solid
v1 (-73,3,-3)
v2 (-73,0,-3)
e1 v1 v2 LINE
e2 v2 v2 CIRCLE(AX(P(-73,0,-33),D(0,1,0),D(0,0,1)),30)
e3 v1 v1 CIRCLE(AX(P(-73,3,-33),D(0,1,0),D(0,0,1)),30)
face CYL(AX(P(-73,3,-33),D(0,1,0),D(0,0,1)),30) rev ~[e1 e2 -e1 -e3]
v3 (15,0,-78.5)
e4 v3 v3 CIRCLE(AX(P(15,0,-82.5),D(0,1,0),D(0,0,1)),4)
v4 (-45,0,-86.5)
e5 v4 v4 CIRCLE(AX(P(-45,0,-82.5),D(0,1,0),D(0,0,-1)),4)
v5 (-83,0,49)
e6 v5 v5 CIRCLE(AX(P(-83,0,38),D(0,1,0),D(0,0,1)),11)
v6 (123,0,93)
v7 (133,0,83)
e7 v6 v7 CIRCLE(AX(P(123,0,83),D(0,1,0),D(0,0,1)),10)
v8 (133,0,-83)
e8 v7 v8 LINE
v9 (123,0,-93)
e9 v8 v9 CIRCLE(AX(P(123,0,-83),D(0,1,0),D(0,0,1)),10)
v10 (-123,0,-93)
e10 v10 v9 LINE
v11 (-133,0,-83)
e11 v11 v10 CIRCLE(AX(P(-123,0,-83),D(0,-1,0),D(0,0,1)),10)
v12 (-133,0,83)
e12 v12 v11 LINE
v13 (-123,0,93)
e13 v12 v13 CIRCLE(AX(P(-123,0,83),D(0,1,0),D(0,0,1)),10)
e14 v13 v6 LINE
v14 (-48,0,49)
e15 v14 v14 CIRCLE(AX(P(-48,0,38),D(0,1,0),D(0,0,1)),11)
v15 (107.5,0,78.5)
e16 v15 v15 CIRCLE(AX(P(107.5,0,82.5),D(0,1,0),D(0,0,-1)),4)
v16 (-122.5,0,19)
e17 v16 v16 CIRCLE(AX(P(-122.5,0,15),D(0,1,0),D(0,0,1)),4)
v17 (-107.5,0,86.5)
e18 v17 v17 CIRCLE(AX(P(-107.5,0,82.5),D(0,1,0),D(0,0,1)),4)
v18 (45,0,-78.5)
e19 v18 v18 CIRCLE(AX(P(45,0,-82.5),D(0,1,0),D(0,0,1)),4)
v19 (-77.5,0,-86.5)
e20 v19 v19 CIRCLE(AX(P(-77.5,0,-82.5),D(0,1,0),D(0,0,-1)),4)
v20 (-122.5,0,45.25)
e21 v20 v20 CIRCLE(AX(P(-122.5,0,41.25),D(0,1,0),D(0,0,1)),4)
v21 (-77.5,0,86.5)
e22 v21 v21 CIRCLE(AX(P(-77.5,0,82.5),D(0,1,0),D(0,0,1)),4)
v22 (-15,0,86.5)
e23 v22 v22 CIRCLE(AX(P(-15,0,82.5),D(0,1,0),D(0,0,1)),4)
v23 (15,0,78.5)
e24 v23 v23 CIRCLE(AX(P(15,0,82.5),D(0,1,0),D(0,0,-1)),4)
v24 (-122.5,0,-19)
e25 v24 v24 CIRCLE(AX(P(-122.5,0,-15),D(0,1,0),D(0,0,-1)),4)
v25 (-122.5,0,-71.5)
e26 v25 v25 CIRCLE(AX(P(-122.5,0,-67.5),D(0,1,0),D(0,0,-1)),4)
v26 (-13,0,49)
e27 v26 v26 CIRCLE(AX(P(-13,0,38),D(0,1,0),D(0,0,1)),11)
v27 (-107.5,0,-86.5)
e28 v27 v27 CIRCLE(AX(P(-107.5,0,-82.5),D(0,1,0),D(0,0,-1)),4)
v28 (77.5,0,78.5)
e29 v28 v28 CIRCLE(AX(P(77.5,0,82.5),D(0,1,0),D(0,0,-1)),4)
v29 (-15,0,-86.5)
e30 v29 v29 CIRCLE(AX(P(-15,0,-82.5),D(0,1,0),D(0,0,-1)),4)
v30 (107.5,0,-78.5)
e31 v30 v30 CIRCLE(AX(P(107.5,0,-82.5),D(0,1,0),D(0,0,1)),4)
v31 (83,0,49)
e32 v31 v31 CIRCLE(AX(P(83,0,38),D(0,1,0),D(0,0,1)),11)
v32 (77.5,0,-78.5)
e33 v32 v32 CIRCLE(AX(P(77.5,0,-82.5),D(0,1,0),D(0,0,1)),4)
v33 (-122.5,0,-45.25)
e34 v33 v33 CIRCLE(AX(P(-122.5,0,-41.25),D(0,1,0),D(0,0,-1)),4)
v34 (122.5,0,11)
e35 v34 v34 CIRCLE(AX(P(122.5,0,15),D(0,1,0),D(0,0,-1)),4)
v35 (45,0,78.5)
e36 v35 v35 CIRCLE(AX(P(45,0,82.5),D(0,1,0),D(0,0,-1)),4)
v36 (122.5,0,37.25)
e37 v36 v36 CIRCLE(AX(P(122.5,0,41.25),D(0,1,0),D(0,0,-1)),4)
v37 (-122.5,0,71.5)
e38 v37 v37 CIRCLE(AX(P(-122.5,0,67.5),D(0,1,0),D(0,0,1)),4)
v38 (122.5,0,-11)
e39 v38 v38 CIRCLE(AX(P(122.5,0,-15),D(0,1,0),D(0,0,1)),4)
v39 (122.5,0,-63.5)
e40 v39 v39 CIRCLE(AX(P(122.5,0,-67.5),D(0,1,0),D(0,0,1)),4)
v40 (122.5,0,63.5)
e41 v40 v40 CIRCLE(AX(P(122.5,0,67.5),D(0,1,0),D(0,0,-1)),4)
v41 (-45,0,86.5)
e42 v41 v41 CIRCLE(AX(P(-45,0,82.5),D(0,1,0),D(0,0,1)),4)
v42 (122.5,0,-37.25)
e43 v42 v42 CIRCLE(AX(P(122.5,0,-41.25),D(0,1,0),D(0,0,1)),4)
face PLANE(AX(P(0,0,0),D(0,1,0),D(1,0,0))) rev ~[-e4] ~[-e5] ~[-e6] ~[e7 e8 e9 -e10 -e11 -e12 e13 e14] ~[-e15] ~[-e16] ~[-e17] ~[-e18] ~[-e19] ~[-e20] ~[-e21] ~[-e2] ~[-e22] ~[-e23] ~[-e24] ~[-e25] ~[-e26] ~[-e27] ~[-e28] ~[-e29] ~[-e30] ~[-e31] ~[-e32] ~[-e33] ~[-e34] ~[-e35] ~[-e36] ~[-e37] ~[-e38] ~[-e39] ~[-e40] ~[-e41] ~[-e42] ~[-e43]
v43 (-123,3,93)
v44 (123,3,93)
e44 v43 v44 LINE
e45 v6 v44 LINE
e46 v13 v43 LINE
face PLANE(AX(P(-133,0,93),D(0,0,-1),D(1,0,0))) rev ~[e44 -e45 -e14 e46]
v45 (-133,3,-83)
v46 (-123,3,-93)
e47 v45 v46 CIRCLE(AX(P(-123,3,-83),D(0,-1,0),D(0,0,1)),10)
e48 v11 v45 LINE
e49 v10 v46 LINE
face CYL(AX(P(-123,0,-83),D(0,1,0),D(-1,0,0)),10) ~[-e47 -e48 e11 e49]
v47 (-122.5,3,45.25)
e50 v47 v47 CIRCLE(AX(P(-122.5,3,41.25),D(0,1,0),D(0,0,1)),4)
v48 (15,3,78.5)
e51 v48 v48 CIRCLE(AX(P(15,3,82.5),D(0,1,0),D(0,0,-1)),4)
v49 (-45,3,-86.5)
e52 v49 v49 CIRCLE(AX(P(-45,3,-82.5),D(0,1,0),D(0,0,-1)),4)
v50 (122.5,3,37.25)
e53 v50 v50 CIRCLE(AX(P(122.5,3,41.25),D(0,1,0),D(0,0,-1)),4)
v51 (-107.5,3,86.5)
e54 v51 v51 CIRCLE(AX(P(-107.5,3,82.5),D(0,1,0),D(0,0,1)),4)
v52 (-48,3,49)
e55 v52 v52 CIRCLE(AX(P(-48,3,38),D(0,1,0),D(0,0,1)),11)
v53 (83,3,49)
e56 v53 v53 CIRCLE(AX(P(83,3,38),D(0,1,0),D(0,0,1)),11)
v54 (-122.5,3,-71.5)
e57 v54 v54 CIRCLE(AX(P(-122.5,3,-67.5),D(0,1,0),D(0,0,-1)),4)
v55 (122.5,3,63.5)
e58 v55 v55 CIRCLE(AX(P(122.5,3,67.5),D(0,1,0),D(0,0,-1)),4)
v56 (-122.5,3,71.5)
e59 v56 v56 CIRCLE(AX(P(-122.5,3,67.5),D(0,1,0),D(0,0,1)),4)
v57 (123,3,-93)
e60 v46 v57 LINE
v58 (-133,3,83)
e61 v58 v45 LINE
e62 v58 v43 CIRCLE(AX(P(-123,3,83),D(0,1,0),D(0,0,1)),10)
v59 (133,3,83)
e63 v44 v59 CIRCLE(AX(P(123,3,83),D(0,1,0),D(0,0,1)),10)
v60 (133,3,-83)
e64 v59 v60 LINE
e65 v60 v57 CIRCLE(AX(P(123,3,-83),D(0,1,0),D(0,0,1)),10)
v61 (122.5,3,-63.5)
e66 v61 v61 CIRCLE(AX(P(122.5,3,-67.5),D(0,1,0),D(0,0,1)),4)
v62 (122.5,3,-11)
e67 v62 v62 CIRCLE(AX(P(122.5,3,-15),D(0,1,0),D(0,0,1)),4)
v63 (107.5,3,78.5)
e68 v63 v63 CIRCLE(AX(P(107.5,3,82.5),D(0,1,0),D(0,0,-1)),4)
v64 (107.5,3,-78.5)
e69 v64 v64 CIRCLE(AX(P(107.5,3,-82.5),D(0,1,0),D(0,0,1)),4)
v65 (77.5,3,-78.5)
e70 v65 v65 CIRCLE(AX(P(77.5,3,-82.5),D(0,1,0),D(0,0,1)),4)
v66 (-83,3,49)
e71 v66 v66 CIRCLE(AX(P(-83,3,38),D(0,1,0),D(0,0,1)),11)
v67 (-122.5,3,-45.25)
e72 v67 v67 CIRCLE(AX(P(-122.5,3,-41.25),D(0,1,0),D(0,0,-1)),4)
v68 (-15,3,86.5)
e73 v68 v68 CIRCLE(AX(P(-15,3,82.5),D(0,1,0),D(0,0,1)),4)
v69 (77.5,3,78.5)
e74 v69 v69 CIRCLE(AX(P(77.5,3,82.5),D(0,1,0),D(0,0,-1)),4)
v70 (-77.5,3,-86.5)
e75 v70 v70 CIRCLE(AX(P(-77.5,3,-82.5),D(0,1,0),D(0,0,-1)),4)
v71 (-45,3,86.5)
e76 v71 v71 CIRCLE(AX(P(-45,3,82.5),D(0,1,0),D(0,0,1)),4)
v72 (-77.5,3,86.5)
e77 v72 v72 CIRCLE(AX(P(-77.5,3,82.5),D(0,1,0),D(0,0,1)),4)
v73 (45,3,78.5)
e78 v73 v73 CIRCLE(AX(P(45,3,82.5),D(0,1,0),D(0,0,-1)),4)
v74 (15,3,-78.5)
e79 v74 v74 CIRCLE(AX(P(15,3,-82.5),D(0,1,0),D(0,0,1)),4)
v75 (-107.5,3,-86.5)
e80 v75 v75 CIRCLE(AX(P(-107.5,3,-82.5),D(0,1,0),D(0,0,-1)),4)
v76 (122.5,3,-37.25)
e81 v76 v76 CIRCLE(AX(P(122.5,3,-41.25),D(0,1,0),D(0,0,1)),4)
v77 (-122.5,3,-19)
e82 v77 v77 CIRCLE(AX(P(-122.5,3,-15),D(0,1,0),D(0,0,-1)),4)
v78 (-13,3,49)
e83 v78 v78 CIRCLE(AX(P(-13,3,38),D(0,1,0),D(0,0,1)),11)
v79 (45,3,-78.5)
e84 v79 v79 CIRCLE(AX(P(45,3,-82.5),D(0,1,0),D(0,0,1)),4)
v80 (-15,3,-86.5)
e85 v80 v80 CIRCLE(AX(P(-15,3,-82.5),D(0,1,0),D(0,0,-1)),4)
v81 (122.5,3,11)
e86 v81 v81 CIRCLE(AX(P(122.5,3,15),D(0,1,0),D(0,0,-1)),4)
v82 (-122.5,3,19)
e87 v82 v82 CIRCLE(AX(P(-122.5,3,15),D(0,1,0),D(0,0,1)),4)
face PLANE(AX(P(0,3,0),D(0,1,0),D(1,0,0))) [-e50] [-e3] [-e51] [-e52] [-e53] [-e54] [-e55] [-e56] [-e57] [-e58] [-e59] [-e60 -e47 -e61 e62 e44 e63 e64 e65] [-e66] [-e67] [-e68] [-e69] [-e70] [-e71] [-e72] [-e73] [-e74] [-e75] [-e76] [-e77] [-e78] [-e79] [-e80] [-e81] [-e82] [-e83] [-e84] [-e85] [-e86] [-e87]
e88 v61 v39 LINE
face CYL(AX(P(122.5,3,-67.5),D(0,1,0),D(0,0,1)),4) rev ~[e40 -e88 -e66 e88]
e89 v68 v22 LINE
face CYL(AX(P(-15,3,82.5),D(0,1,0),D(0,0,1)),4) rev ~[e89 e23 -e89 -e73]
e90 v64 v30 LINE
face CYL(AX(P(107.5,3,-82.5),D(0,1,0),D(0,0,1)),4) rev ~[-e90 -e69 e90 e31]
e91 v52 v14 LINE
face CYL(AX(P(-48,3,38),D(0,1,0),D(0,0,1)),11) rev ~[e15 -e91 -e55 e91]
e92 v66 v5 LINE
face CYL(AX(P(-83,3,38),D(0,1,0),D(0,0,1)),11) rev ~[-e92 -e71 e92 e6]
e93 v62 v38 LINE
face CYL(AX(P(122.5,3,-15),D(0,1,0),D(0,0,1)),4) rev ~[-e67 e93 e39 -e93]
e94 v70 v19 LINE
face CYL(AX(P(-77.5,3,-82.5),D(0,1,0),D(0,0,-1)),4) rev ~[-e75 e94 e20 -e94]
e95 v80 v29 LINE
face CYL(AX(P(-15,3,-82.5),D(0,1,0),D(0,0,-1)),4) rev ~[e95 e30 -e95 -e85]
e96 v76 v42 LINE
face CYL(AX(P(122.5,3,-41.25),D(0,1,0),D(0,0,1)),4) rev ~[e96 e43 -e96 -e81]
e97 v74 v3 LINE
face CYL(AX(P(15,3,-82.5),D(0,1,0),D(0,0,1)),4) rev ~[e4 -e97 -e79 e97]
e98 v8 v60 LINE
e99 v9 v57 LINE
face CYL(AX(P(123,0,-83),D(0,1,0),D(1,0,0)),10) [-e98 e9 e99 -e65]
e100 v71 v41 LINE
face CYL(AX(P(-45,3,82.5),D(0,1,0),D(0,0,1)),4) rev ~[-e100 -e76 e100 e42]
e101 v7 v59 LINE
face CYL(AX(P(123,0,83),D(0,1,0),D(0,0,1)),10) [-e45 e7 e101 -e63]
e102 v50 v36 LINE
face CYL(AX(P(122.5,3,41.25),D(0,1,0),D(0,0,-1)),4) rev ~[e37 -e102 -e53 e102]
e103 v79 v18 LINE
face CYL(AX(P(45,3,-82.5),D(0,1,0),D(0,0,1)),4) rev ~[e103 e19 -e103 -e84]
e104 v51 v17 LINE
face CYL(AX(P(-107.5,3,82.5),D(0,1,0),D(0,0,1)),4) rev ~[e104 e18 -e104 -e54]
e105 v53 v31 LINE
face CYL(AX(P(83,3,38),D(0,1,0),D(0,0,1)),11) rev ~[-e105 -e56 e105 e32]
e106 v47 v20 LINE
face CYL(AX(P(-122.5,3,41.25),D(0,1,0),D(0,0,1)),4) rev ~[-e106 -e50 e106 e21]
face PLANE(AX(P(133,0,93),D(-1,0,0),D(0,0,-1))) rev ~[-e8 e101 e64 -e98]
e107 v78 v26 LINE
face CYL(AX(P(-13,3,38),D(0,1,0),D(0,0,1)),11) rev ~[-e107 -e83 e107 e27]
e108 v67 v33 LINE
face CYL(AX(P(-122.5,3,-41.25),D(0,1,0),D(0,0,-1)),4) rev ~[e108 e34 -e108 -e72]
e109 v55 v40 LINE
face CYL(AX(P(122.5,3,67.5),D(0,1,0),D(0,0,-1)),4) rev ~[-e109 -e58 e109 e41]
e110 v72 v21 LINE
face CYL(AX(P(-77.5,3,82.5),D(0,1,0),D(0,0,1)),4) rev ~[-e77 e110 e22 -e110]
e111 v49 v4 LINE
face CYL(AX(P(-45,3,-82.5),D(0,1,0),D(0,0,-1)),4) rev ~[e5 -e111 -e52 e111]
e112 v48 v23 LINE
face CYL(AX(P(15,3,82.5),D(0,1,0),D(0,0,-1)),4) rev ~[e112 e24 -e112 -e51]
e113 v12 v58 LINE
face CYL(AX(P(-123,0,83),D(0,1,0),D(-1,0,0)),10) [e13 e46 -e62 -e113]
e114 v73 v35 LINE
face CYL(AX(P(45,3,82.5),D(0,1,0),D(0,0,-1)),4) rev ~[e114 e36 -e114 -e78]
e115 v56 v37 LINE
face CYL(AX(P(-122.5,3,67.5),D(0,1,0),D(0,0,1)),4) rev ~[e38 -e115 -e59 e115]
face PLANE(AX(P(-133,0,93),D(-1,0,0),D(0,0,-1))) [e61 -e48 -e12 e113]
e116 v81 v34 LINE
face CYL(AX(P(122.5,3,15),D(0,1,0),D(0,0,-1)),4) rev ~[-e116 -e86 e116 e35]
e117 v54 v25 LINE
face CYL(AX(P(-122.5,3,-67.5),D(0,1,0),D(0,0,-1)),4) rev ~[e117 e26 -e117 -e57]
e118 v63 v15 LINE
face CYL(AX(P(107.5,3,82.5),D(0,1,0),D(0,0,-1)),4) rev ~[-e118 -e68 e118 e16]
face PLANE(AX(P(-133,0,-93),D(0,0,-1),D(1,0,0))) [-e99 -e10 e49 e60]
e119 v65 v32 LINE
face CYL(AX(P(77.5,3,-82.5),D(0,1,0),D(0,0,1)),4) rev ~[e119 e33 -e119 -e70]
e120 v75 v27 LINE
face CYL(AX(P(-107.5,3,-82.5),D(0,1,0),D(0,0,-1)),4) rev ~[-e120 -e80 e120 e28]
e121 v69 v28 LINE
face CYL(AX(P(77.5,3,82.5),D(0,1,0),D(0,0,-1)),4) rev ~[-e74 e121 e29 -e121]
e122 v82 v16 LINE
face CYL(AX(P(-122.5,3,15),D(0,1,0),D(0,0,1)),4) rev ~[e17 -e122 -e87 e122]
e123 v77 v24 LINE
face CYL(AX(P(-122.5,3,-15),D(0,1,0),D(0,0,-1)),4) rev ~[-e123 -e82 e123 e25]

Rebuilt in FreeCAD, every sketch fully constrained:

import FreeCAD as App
import Part
import Sketcher

V = App.Vector
Q = App.Units.Quantity


def edges_at(feature, points):
    """Names of the edges that pass closest to the given points."""
    edges = feature.Shape.Edges
    near = lambda p: min(range(len(edges)), key=lambda i: edges[i].distToShape(Part.Vertex(*p))[0])
    return sorted({f"Edge{near(p) + 1}" for p in points})


def add_polygon(sketch, points):
    """Adds a closed chain of lines whose ends are joined by coincident constraints."""
    first, n = sketch.GeometryCount, len(points)
    for a, b in zip(points, points[1:] + points[:1]):
        sketch.addGeometry(Part.LineSegment(App.Vector(*a, 0), App.Vector(*b, 0)), False)
    for i in range(n):
        sketch.addConstraint(Sketcher.Constraint("Coincident", first + i, 2, first + (i + 1) % n, 1))

doc = App.newDocument("Part")
body = doc.addObject("PartDesign::Body", "Body")

sketch1 = doc.addObject("Sketcher::SketchObject", "Sketch")
body.addObject(sketch1)
sketch1.AttachmentSupport = (doc.XZ_Plane, [""])
sketch1.MapMode = "FlatFace"
add_polygon(sketch1, [(-133, -93), (-133, 93), (133, 93), (133, -93)])
sketch1.addConstraint(Sketcher.Constraint("Vertical", 0))
sketch1.addConstraint(Sketcher.Constraint("Horizontal", 1))
sketch1.addConstraint(Sketcher.Constraint("Vertical", 2))
sketch1.addConstraint(Sketcher.Constraint("Horizontal", 3))
sketch1.addConstraint(Sketcher.Constraint("Symmetric", 0, 2, 2, 2, -1, 1))
sketch1.addConstraint(Sketcher.Constraint("DistanceX", 1, 1, 1, 2, Q("266 mm")))
sketch1.addConstraint(Sketcher.Constraint("DistanceY", 0, 1, 0, 2, Q("186 mm")))
pad1 = doc.addObject("PartDesign::Pad", "Pad")
body.addObject(pad1)
pad1.Profile = sketch1
pad1.Length = 3
pad1.Reversed = True
doc.recompute()

fillet = doc.addObject("PartDesign::Fillet", "Fillet")
body.addObject(fillet)
fillet.Base = (pad1, edges_at(pad1, [
    (-133, 1.5, -93),
    (133, 1.5, -93),
    (133, 1.5, 93),
    (-133, 1.5, 93),
]))
fillet.Radius = 10

sketch2 = doc.addObject("Sketcher::SketchObject", "Sketch001")
body.addObject(sketch2)
sketch2.AttachmentSupport = (doc.XZ_Plane, [""])
sketch2.MapMode = "FlatFace"
sketch2.AttachmentOffset = App.Placement(V(0, 0, -3), App.Rotation())
sketch2.addGeometry(Part.Circle(V(-122.5, 15, 0), V(0, 0, 1), 4), False)
sketch2.addGeometry(Part.Circle(V(-122.5, 41.2, 0), V(0, 0, 1), 4), False)
sketch2.addGeometry(Part.Circle(V(-122.5, 67.5, 0), V(0, 0, 1), 4), False)
sketch2.addGeometry(Part.Circle(V(-107.5, 82.5, 0), V(0, 0, 1), 4), False)
sketch2.addGeometry(Part.Circle(V(-77.5, 82.5, 0), V(0, 0, 1), 4), False)
sketch2.addGeometry(Part.Circle(V(-45, 82.5, 0), V(0, 0, 1), 4), False)
sketch2.addGeometry(Part.Circle(V(-15, 82.5, 0), V(0, 0, 1), 4), False)
sketch2.addGeometry(Part.Circle(V(-15, -82.5, 0), V(0, 0, 1), 4), False)
sketch2.addGeometry(Part.Circle(V(-45, -82.5, 0), V(0, 0, 1), 4), False)
sketch2.addGeometry(Part.Circle(V(-77.5, -82.5, 0), V(0, 0, 1), 4), False)
sketch2.addGeometry(Part.Circle(V(-107.5, -82.5, 0), V(0, 0, 1), 4), False)
sketch2.addGeometry(Part.Circle(V(-122.5, -67.5, 0), V(0, 0, 1), 4), False)
sketch2.addGeometry(Part.Circle(V(-122.5, -41.2, 0), V(0, 0, 1), 4), False)
sketch2.addGeometry(Part.Circle(V(-122.5, -15, 0), V(0, 0, 1), 4), False)
sketch2.addGeometry(Part.Circle(V(15, 82.5, 0), V(0, 0, 1), 4), False)
sketch2.addGeometry(Part.Circle(V(107.5, 82.5, 0), V(0, 0, 1), 4), False)
sketch2.addGeometry(Part.Circle(V(122.5, 67.5, 0), V(0, 0, 1), 4), False)
sketch2.addGeometry(Part.Circle(V(122.5, 41.2, 0), V(0, 0, 1), 4), False)
sketch2.addGeometry(Part.Circle(V(122.5, 15, 0), V(0, 0, 1), 4), False)
sketch2.addGeometry(Part.Circle(V(122.5, -15, 0), V(0, 0, 1), 4), False)
sketch2.addGeometry(Part.Circle(V(122.5, -41.2, 0), V(0, 0, 1), 4), False)
sketch2.addGeometry(Part.Circle(V(122.5, -67.5, 0), V(0, 0, 1), 4), False)
sketch2.addGeometry(Part.Circle(V(107.5, -82.5, 0), V(0, 0, 1), 4), False)
sketch2.addGeometry(Part.Circle(V(77.5, -82.5, 0), V(0, 0, 1), 4), False)
sketch2.addGeometry(Part.Circle(V(45, -82.5, 0), V(0, 0, 1), 4), False)
sketch2.addGeometry(Part.Circle(V(15, -82.5, 0), V(0, 0, 1), 4), False)
sketch2.addGeometry(Part.Circle(V(-73, -33, 0), V(0, 0, 1), 30), False)
sketch2.addGeometry(Part.Circle(V(83, 38, 0), V(0, 0, 1), 11), False)
sketch2.addGeometry(Part.Circle(V(-83, 38, 0), V(0, 0, 1), 11), False)
sketch2.addGeometry(Part.Circle(V(-48, 38, 0), V(0, 0, 1), 11), False)
sketch2.addGeometry(Part.Circle(V(-13, 38, 0), V(0, 0, 1), 11), False)
sketch2.addGeometry(Part.Circle(V(45, 82.5, 0), V(0, 0, 1), 4), False)
sketch2.addGeometry(Part.Circle(V(77.5, 82.5, 0), V(0, 0, 1), 4), False)
sketch2.addConstraint(Sketcher.Constraint("Equal", 0, 1))
sketch2.addConstraint(Sketcher.Constraint("Equal", 1, 2))
sketch2.addConstraint(Sketcher.Constraint("Equal", 2, 3))
sketch2.addConstraint(Sketcher.Constraint("Equal", 3, 4))
sketch2.addConstraint(Sketcher.Constraint("Equal", 4, 5))
sketch2.addConstraint(Sketcher.Constraint("Equal", 5, 6))
sketch2.addConstraint(Sketcher.Constraint("Equal", 6, 7))
sketch2.addConstraint(Sketcher.Constraint("Equal", 7, 8))
sketch2.addConstraint(Sketcher.Constraint("Equal", 8, 9))
sketch2.addConstraint(Sketcher.Constraint("Equal", 9, 10))
sketch2.addConstraint(Sketcher.Constraint("Equal", 10, 11))
sketch2.addConstraint(Sketcher.Constraint("Equal", 11, 12))
sketch2.addConstraint(Sketcher.Constraint("Equal", 12, 13))
sketch2.addConstraint(Sketcher.Constraint("Equal", 13, 14))
sketch2.addConstraint(Sketcher.Constraint("Equal", 14, 15))
sketch2.addConstraint(Sketcher.Constraint("Equal", 15, 16))
sketch2.addConstraint(Sketcher.Constraint("Equal", 16, 17))
sketch2.addConstraint(Sketcher.Constraint("Equal", 17, 18))
sketch2.addConstraint(Sketcher.Constraint("Equal", 18, 19))
sketch2.addConstraint(Sketcher.Constraint("Equal", 19, 20))
sketch2.addConstraint(Sketcher.Constraint("Equal", 20, 21))
sketch2.addConstraint(Sketcher.Constraint("Equal", 21, 22))
sketch2.addConstraint(Sketcher.Constraint("Equal", 22, 23))
sketch2.addConstraint(Sketcher.Constraint("Equal", 23, 24))
sketch2.addConstraint(Sketcher.Constraint("Equal", 24, 25))
sketch2.addConstraint(Sketcher.Constraint("Equal", 27, 28))
sketch2.addConstraint(Sketcher.Constraint("Equal", 28, 29))
sketch2.addConstraint(Sketcher.Constraint("Equal", 29, 30))
sketch2.addConstraint(Sketcher.Constraint("Equal", 25, 31))
sketch2.addConstraint(Sketcher.Constraint("Equal", 31, 32))
sketch2.addConstraint(Sketcher.Constraint("Symmetric", 7, 3, 14, 3, -1, 1))
sketch2.addConstraint(Sketcher.Constraint("Symmetric", 10, 3, 15, 3, -1, 1))
sketch2.addConstraint(Sketcher.Constraint("Symmetric", 11, 3, 16, 3, -1, 1))
sketch2.addConstraint(Sketcher.Constraint("Symmetric", 12, 3, 17, 3, -1, 1))
sketch2.addConstraint(Sketcher.Constraint("Symmetric", 13, 3, 18, 3, -1, 1))
sketch2.addConstraint(Sketcher.Constraint("Symmetric", 0, 3, 19, 3, -1, 1))
sketch2.addConstraint(Sketcher.Constraint("Symmetric", 1, 3, 20, 3, -1, 1))
sketch2.addConstraint(Sketcher.Constraint("Symmetric", 2, 3, 21, 3, -1, 1))
sketch2.addConstraint(Sketcher.Constraint("Symmetric", 3, 3, 22, 3, -1, 1))
sketch2.addConstraint(Sketcher.Constraint("Symmetric", 4, 3, 23, 3, -1, 1))
sketch2.addConstraint(Sketcher.Constraint("Symmetric", 5, 3, 24, 3, -1, 1))
sketch2.addConstraint(Sketcher.Constraint("Symmetric", 6, 3, 25, 3, -1, 1))
sketch2.addConstraint(Sketcher.Constraint("Symmetric", 8, 3, 31, 3, -1, 1))
sketch2.addConstraint(Sketcher.Constraint("Symmetric", 9, 3, 32, 3, -1, 1))
sketch2.addConstraint(Sketcher.Constraint("Symmetric", 6, 3, 14, 3, -2))
sketch2.addConstraint(Sketcher.Constraint("Symmetric", 3, 3, 15, 3, -2))
sketch2.addConstraint(Sketcher.Constraint("Symmetric", 2, 3, 16, 3, -2))
sketch2.addConstraint(Sketcher.Constraint("Symmetric", 1, 3, 17, 3, -2))
sketch2.addConstraint(Sketcher.Constraint("Symmetric", 0, 3, 18, 3, -2))
sketch2.addConstraint(Sketcher.Constraint("Symmetric", 9, 3, 23, 3, -2))
sketch2.addConstraint(Sketcher.Constraint("Symmetric", 8, 3, 24, 3, -2))
sketch2.addConstraint(Sketcher.Constraint("Symmetric", 27, 3, 28, 3, -2))
sketch2.addConstraint(Sketcher.Constraint("Horizontal", 3, 3, 4, 3))
sketch2.addConstraint(Sketcher.Constraint("Horizontal", 4, 3, 5, 3))
sketch2.addConstraint(Sketcher.Constraint("Horizontal", 5, 3, 6, 3))
sketch2.addConstraint(Sketcher.Constraint("Horizontal", 28, 3, 29, 3))
sketch2.addConstraint(Sketcher.Constraint("Horizontal", 29, 3, 30, 3))
sketch2.addConstraint(Sketcher.Constraint("Vertical", 0, 3, 1, 3))
sketch2.addConstraint(Sketcher.Constraint("Vertical", 1, 3, 2, 3))
sketch2.addConstraint(Sketcher.Constraint("Diameter", 0, Q("8 mm")))
sketch2.addConstraint(Sketcher.Constraint("Diameter", 26, Q("60 mm")))
sketch2.addConstraint(Sketcher.Constraint("Diameter", 27, Q("22 mm")))
sketch2.addConstraint(Sketcher.Constraint("DistanceY", -1, 1, 0, 3, Q("15 mm")))
sketch2.addConstraint(Sketcher.Constraint("DistanceX", 5, 3, -1, 1, Q("45 mm")))
sketch2.addConstraint(Sketcher.Constraint("DistanceX", 6, 3, -1, 1, Q("15 mm")))
sketch2.addConstraint(Sketcher.Constraint("DistanceX", 26, 3, -1, 1, Q("73 mm")))
sketch2.addConstraint(Sketcher.Constraint("DistanceY", 26, 3, -1, 1, Q("33 mm")))
sketch2.addConstraint(Sketcher.Constraint("DistanceX", -1, 1, 27, 3, Q("83 mm")))
sketch2.addConstraint(Sketcher.Constraint("DistanceY", -1, 1, 27, 3, Q("38 mm")))
sketch2.addConstraint(Sketcher.Constraint("DistanceX", 29, 3, -1, 1, Q("48 mm")))
sketch2.addConstraint(Sketcher.Constraint("DistanceX", 30, 3, -1, 1, Q("13 mm")))
sketch2.addConstraint(Sketcher.Constraint("DistanceX", 2, 3, 3, 3, Q("15 mm")))
sketch2.addConstraint(Sketcher.Constraint("DistanceY", 2, 3, 3, 3, Q("15 mm")))
sketch2.addConstraint(Sketcher.Constraint("DistanceX", 3, 3, 4, 3, Q("30 mm")))
sketch2.addConstraint(Sketcher.Constraint("DistanceY", 7, 3, 6, 3, Q("165 mm")))
sketch2.addConstraint(Sketcher.Constraint("DistanceX", 4, 3, 15, 3, Q("185 mm")))
sketch2.addConstraint(Sketcher.Constraint("DistanceY", 12, 3, 1, 3, Q("82.5 mm")))
pocket1 = doc.addObject("PartDesign::Pocket", "Pocket")
body.addObject(pocket1)
pocket1.Profile = sketch2
pocket1.Type = "ThroughAll"
pocket1.Reversed = True

doc.recompute()
